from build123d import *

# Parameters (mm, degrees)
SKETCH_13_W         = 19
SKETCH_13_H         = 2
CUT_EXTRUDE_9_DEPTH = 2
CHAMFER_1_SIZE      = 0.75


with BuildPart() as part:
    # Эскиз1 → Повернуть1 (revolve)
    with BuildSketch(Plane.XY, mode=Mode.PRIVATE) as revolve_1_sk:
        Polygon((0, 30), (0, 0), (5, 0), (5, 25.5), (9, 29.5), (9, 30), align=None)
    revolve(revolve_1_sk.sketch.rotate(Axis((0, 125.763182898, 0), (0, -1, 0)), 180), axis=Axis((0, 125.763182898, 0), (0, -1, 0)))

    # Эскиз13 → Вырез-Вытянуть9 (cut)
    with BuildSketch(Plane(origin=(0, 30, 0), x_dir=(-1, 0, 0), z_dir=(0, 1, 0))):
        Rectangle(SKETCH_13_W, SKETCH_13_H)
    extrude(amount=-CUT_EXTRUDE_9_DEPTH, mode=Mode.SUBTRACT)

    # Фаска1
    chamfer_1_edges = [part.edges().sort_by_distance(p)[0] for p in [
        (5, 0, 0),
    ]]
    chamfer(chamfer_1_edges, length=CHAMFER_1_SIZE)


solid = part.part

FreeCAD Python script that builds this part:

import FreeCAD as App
import Part
import Sketcher
from FreeCAD import Vector
Q = App.Units.Quantity


def edges_at(feature, points):
    """Names of the edges that pass closest to the given points."""
    edges = feature.Shape.Edges
    near = lambda p: min(range(len(edges)), key=lambda i: edges[i].distToShape(Part.Vertex(*p))[0])
    return sorted({f"Edge{near(p) + 1}" for p in points})


def add_polygon(sketch, points):
    """Adds a closed chain of lines whose ends are joined by coincident constraints."""
    first, n = sketch.GeometryCount, len(points)
    for a, b in zip(points, points[1:] + points[:1]):
        sketch.addGeometry(Part.LineSegment(App.Vector(*a, 0), App.Vector(*b, 0)), False)
    for i in range(n):
        sketch.addConstraint(Sketcher.Constraint("Coincident", first + i, 2, first + (i + 1) % n, 1))

doc = App.newDocument("Part")
body = doc.addObject("PartDesign::Body", "Body")

sketch1 = body.newObject("Sketcher::SketchObject", "Sketch")
sketch1.AttachmentSupport = (doc.getObject("XY_Plane"), [""])
sketch1.MapMode = "FlatFace"
add_polygon(sketch1, [(0, 30), (0, 0), (5, 0), (5, 25.5), (9, 29.5), (9, 30)])
sketch1.addConstraint([
    Sketcher.Constraint("Vertical", 0),
    Sketcher.Constraint("Horizontal", 1),
    Sketcher.Constraint("Vertical", 2),
    Sketcher.Constraint("Vertical", 4),
    Sketcher.Constraint("Horizontal", 5),
    Sketcher.Constraint("Coincident", 0, 2, -1, 1),
    Sketcher.Constraint("DistanceX", 1, 1, 1, 2, 5.0),
    Sketcher.Constraint("DistanceX", 5, 2, 5, 1, 9.0),
    Sketcher.Constraint("DistanceY", 0, 2, 0, 1, 30.0),
    Sketcher.Constraint("Angle", 3, Q("45 deg")),
    Sketcher.Constraint("DistanceY", 2, 1, 2, 2, 25.5),
])
revolution = body.newObject("PartDesign::Revolution", "Revolution")
revolution.Profile = sketch1
revolution.ReferenceAxis = (sketch1, ["V_Axis"])
revolution.Angle = 360

sketch2 = body.newObject("Sketcher::SketchObject", "Sketch001")
sketch2.AttachmentSupport = (doc.getObject("XZ_Plane"), [""])
sketch2.MapMode = "FlatFace"
sketch2.AttachmentOffset = App.Placement(Vector(0, 0, -30), App.Rotation())
add_polygon(sketch2, [(9.5, 1), (9.5, -1), (-9.5, -1), (-9.5, 1)])
sketch2.addConstraint([
    Sketcher.Constraint("Vertical", 0),
    Sketcher.Constraint("Horizontal", 1),
    Sketcher.Constraint("Vertical", 2),
    Sketcher.Constraint("Horizontal", 3),
    Sketcher.Constraint("Symmetric", 0, 2, 2, 2, -1, 1),
    Sketcher.Constraint("DistanceX", 1, 2, 1, 1, 19.0),
    Sketcher.Constraint("DistanceY", 0, 2, 0, 1, 2.0),
])
pocket1 = body.newObject("PartDesign::Pocket", "Pocket")
pocket1.Profile = sketch2
pocket1.Length = 2
pocket1.Reversed = True
doc.recompute()

chamfer = body.newObject("PartDesign::Chamfer", "Chamfer")
chamfer.Base = (pocket1, edges_at(pocket1, [(5, 0, 0)]))
chamfer.Size = 0.75

doc.recompute()
